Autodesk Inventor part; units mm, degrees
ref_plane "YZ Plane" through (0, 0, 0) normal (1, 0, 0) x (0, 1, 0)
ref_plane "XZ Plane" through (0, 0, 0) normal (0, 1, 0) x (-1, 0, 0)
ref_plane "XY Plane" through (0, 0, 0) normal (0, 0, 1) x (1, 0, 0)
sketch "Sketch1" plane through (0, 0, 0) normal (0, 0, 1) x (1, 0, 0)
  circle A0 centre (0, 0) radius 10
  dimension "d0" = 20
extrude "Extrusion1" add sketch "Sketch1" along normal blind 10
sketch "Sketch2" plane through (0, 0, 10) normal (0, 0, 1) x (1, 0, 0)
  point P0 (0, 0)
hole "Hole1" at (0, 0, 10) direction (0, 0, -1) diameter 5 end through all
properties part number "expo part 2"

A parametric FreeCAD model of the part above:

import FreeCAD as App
import Part
import Sketcher

V = App.Vector
Q = App.Units.Quantity

doc = App.newDocument("Part")
body = doc.addObject("PartDesign::Body", "Body")

sketch1 = body.newObject("Sketcher::SketchObject", "Sketch")
sketch1.AttachmentSupport = (doc.getObject("XY_Plane"), [""])
sketch1.MapMode = "FlatFace"
sketch1.addGeometry(Part.Circle(V(0, 0, 0), V(0, 0, 1), 10), False)
sketch1.addConstraint([
    Sketcher.Constraint("Coincident", 0, 3, -1, 1),
    Sketcher.Constraint("Diameter", 0, Q("20 mm")),
])
pad1 = body.newObject("PartDesign::Pad", "Pad")
pad1.Profile = sketch1
pad1.Length = 10

sketch2 = body.newObject("Sketcher::SketchObject", "Sketch001")
sketch2.AttachmentSupport = (doc.getObject("XY_Plane"), [""])
sketch2.MapMode = "FlatFace"
sketch2.AttachmentOffset = App.Placement(V(0, 0, 10), App.Rotation())
sketch2.addGeometry(Part.Circle(V(0, 0, 0), V(0, 0, 1), 2.5), False)
sketch2.addConstraint([
    Sketcher.Constraint("Coincident", 0, 3, -1, 1),
    Sketcher.Constraint("Diameter", 0, Q("5 mm")),
])
doc.recompute()
hole = body.newObject("PartDesign::Hole", "Hole")
hole.Profile = sketch2
hole.ThreadType = "None"
hole.Diameter = 5
hole.DepthType = "ThroughAll"

doc.recompute()
